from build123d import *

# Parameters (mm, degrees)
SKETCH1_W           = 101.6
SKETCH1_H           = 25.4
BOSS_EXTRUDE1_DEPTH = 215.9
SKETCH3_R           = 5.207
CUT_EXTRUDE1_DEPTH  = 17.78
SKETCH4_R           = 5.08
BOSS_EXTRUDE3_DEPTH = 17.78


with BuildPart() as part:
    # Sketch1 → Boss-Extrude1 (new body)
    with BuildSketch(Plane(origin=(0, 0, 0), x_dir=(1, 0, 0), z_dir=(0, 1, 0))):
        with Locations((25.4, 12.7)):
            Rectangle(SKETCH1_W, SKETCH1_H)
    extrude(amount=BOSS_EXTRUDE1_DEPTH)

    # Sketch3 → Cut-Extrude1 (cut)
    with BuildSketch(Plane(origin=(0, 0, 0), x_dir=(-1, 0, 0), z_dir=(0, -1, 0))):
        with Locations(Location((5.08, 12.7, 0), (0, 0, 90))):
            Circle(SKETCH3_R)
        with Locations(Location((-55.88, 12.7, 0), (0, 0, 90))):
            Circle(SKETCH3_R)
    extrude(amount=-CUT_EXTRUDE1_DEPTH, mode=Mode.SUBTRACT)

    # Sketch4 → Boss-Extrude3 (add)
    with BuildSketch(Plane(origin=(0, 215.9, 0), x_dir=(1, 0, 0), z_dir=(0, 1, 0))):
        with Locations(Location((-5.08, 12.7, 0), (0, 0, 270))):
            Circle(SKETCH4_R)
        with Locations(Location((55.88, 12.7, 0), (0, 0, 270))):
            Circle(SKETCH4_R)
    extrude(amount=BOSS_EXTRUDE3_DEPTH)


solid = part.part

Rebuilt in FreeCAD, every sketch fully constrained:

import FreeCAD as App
import Part
import Sketcher
from FreeCAD import Vector
Q = App.Units.Quantity


def add_polygon(sketch, points):
    """Adds a closed chain of lines whose ends are joined by coincident constraints."""
    first, n = sketch.GeometryCount, len(points)
    for a, b in zip(points, points[1:] + points[:1]):
        sketch.addGeometry(Part.LineSegment(App.Vector(*a, 0), App.Vector(*b, 0)), False)
    for i in range(n):
        sketch.addConstraint(Sketcher.Constraint("Coincident", first + i, 2, first + (i + 1) % n, 1))

doc = App.newDocument("Part")
params = doc.addObject("Spreadsheet::Sheet", "Params")
for row, (alias, value) in enumerate([
    ("sketch1_width", "4 in"),
    ("sketch1_height", "1 in"),
    ("pad1_length", "8.5 in"),
    ("sketch2_diameter", "0.41 in"),
    ("pocket1_length", "0.7 in"),
    ("sketch3_diameter", "0.4 in"),
    ("pad2_length", "0.7 in"),
], start=1):
    params.set(f"A{row}", alias)
    params.set(f"B{row}", "=" + value)
    params.setAlias(f"B{row}", alias)

body = doc.addObject("PartDesign::Body", "Body")

sketch1 = body.newObject("Sketcher::SketchObject", "Sketch")
sketch1.AttachmentSupport = (doc.getObject("XZ_Plane"), [""])
sketch1.MapMode = "FlatFace"
add_polygon(sketch1, [(-25, -25), (-25, 0), (76, 0), (76, -25)])
sketch1.addConstraint([
    Sketcher.Constraint("Vertical", 0),
    Sketcher.Constraint("Horizontal", 1),
    Sketcher.Constraint("Vertical", 2),
    Sketcher.Constraint("Horizontal", 3),
    Sketcher.Constraint("PointOnObject", 0, 2, -1),
    Sketcher.Constraint("DistanceX", 1, 1, 1, 2, Q("4 in")),
    Sketcher.Constraint("DistanceY", 0, 1, 0, 2, Q("1 in")),
    Sketcher.Constraint("DistanceX", 0, 2, -1, 1, Q("1 in")),
])
sketch1.setExpression("Constraints[9]", "Params.sketch1_width")
sketch1.setExpression("Constraints[10]", "Params.sketch1_height")
pad1 = body.newObject("PartDesign::Pad", "Pad")
pad1.Profile = sketch1
pad1.setExpression("Length", "Params.pad1_length")
pad1.Reversed = True

sketch2 = body.newObject("Sketcher::SketchObject", "Sketch001")
sketch2.AttachmentSupport = (doc.getObject("XZ_Plane"), [""])
sketch2.MapMode = "FlatFace"
sketch2.addGeometry([
    Part.Circle(Vector(-5, -13, 0), Vector(0, 0, 1), 5),
    Part.Circle(Vector(56, -13, 0), Vector(0, 0, 1), 5),
], False)
sketch2.addConstraint([
    Sketcher.Constraint("Equal", 0, 1),
    Sketcher.Constraint("Horizontal", 0, 3, 1, 3),
    Sketcher.Constraint("Diameter", 0, Q("0.41 in")),
    Sketcher.Constraint("DistanceX", 0, 3, -1, 1, Q("0.2 in")),
    Sketcher.Constraint("DistanceY", 0, 3, -1, 1, Q("0.5 in")),
    Sketcher.Constraint("DistanceX", -1, 1, 1, 3, Q("2.2 in")),
])
sketch2.setExpression("Constraints[2]", "Params.sketch2_diameter")
pocket1 = body.newObject("PartDesign::Pocket", "Pocket")
pocket1.Profile = sketch2
pocket1.setExpression("Length", "Params.pocket1_length")

sketch3 = body.newObject("Sketcher::SketchObject", "Sketch002")
sketch3.AttachmentSupport = (doc.getObject("XZ_Plane"), [""])
sketch3.MapMode = "FlatFace"
sketch3.AttachmentOffset = App.Placement(Vector(0, 0, -8.5 * 25.4), App.Rotation())
sketch3.addGeometry([
    Part.Circle(Vector(-5, -13, 0), Vector(0, 0, 1), 5),
    Part.Circle(Vector(56, -13, 0), Vector(0, 0, 1), 5),
], False)
sketch3.addConstraint([
    Sketcher.Constraint("Equal", 0, 1),
    Sketcher.Constraint("Horizontal", 0, 3, 1, 3),
    Sketcher.Constraint("Diameter", 0, Q("0.4 in")),
    Sketcher.Constraint("DistanceX", 0, 3, -1, 1, Q("0.2 in")),
    Sketcher.Constraint("DistanceY", 0, 3, -1, 1, Q("0.5 in")),
    Sketcher.Constraint("DistanceX", -1, 1, 1, 3, Q("2.2 in")),
])
sketch3.setExpression("Constraints[2]", "Params.sketch3_diameter")
pad2 = body.newObject("PartDesign::Pad", "Pad001")
pad2.Profile = sketch3
pad2.setExpression("Length", "Params.pad2_length")
pad2.Reversed = True

doc.recompute()
